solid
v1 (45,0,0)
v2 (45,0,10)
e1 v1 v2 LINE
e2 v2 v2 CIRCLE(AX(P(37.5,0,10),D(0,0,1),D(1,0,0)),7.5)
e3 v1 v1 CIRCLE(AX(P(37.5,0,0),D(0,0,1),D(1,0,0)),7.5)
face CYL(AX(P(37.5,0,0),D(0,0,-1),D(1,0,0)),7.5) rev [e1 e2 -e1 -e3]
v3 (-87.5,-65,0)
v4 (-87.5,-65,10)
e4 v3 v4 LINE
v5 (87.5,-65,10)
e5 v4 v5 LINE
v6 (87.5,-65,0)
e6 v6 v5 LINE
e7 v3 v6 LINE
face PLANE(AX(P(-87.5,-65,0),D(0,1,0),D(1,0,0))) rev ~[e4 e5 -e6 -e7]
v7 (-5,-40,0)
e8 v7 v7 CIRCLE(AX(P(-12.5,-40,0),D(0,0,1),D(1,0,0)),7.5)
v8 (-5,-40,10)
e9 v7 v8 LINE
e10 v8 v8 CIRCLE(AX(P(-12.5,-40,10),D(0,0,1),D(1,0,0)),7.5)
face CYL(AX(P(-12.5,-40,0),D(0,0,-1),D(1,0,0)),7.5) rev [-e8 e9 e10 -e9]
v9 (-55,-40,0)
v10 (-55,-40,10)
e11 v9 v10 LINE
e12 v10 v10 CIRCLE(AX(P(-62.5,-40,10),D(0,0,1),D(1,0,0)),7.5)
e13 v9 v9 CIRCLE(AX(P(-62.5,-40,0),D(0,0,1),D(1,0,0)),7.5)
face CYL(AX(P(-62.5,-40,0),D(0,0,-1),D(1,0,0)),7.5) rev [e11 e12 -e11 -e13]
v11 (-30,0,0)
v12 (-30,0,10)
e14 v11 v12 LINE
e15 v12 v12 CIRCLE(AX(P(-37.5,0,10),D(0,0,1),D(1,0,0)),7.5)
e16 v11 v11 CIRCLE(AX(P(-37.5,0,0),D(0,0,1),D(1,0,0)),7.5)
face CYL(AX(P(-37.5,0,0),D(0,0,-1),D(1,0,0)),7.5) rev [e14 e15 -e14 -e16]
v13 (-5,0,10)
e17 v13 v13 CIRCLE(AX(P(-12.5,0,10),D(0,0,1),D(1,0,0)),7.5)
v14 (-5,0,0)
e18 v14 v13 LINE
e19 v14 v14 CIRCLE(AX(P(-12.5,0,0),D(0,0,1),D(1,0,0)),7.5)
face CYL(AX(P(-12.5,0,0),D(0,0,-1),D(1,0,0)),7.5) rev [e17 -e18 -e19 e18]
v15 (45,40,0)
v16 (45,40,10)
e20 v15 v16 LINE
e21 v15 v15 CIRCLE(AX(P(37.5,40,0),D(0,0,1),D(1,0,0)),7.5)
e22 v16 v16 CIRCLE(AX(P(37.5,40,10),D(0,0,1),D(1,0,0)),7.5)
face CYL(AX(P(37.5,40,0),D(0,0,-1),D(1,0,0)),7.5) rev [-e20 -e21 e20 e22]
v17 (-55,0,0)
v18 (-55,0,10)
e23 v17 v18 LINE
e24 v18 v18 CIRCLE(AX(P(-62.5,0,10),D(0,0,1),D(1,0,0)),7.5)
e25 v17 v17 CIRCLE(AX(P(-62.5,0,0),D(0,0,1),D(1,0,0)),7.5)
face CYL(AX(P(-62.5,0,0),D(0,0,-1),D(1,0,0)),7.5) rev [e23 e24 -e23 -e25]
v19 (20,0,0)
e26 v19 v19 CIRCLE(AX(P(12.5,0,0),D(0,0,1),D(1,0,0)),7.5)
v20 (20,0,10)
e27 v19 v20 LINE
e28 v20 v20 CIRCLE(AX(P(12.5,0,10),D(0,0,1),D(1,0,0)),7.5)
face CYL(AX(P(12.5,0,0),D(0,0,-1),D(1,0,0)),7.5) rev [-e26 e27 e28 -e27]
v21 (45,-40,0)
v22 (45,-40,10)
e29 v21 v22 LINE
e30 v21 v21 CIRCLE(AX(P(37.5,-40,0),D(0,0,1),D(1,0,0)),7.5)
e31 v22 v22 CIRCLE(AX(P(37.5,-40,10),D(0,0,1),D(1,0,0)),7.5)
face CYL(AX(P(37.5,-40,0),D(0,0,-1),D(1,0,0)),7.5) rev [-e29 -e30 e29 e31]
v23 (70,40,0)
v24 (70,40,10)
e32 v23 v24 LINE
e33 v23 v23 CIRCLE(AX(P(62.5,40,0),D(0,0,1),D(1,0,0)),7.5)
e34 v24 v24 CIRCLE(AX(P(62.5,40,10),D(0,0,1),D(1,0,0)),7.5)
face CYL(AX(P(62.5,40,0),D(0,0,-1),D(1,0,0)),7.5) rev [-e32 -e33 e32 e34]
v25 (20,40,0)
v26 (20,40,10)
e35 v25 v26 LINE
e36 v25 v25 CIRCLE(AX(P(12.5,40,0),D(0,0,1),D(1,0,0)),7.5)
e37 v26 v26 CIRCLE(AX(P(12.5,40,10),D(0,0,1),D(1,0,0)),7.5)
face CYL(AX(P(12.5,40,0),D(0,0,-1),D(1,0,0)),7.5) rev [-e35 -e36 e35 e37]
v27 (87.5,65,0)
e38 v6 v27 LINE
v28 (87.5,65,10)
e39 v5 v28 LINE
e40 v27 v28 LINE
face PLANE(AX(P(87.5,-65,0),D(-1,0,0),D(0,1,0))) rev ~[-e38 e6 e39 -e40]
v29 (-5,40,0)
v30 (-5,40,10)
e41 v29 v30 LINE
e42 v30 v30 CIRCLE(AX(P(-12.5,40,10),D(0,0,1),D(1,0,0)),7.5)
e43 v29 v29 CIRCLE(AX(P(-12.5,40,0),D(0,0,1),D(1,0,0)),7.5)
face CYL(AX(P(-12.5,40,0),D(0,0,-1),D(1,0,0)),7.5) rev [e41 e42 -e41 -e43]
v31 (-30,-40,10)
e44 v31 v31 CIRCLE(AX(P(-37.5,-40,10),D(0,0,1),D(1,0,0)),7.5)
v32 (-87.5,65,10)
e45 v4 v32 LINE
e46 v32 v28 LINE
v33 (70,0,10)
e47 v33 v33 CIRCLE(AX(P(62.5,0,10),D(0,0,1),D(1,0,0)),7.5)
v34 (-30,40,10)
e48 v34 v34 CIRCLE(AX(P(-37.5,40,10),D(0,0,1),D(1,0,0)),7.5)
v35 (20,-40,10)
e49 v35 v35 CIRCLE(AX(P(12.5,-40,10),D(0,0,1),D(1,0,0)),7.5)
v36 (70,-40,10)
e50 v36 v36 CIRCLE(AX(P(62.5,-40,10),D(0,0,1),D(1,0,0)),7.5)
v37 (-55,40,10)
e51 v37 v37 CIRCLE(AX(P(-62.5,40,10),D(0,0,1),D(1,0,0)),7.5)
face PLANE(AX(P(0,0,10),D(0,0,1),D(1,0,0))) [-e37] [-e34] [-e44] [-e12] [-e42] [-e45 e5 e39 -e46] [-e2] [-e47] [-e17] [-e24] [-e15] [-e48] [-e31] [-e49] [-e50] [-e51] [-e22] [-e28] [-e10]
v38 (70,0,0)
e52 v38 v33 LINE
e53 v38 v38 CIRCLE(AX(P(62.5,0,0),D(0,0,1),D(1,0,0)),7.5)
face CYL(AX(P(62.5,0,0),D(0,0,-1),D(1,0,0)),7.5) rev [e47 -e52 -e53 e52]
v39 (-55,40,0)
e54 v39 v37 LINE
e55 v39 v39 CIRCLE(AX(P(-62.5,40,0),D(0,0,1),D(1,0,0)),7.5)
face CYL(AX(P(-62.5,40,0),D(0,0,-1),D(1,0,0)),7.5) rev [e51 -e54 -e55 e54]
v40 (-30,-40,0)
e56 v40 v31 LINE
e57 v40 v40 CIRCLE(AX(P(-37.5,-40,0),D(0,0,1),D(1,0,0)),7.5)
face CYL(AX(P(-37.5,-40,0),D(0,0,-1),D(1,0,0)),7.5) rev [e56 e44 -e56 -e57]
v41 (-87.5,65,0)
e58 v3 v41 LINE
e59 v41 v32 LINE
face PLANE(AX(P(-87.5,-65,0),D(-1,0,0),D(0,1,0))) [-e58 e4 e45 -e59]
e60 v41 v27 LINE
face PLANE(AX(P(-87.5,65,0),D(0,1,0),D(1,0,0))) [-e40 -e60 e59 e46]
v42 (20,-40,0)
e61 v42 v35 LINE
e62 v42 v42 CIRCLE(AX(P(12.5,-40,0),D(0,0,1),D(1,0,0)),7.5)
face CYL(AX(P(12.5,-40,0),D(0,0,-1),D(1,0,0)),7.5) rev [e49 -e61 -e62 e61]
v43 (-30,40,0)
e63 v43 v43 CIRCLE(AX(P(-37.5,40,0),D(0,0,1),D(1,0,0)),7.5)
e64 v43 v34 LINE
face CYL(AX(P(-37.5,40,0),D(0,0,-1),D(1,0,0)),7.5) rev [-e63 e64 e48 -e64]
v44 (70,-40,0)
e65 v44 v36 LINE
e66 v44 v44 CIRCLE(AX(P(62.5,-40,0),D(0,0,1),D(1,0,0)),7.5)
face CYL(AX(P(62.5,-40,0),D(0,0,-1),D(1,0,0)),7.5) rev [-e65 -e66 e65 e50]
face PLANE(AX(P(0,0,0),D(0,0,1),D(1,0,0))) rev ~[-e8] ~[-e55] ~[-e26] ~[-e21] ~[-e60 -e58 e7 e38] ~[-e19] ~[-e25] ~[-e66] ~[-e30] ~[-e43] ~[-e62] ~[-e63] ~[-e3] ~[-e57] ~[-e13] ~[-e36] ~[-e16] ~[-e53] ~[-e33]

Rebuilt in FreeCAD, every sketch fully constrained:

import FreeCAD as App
import Part
import Sketcher

V = App.Vector
Q = App.Units.Quantity

doc = App.newDocument("Part")
params = doc.addObject("Spreadsheet::Sheet", "Params")
for row, (alias, value) in enumerate([
    ("sketch1_diameter", "15 mm"),
    ("sketch1_width", "175 mm"),
    ("sketch1_height", "130 mm"),
    ("pad1_length", "10 mm"),
], start=1):
    params.set(f"A{row}", alias)
    params.set(f"B{row}", "=" + value)
    params.setAlias(f"B{row}", alias)

body = doc.addObject("PartDesign::Body", "Body")

sketch1 = body.newObject("Sketcher::SketchObject", "Sketch")
sketch1.AttachmentSupport = (doc.getObject("XY_Plane"), [""])
sketch1.MapMode = "FlatFace"
sketch1.addGeometry([
    Part.LineSegment(V(-87.5, 65, 0), V(-87.5, -65, 0)),
    Part.LineSegment(V(-87.5, -65, 0), V(87.5, -65, 0)),
    Part.LineSegment(V(87.5, -65, 0), V(87.5, 65, 0)),
    Part.LineSegment(V(87.5, 65, 0), V(-87.5, 65, 0)),
    Part.Circle(V(-62.5, -40, 0), V(0, 0, 1), 7.5),
    Part.Circle(V(-37.5, -40, 0), V(0, 0, 1), 7.5),
    Part.Circle(V(-12.5, -40, 0), V(0, 0, 1), 7.5),
    Part.Circle(V(12.5, -40, 0), V(0, 0, 1), 7.5),
    Part.Circle(V(37.5, -40, 0), V(0, 0, 1), 7.5),
    Part.Circle(V(62.5, -40, 0), V(0, 0, 1), 7.5),
    Part.Circle(V(-62.5, 0, 0), V(0, 0, 1), 7.5),
    Part.Circle(V(-37.5, 0, 0), V(0, 0, 1), 7.5),
    Part.Circle(V(-12.5, 0, 0), V(0, 0, 1), 7.5),
    Part.Circle(V(-62.5, 40, 0), V(0, 0, 1), 7.5),
    Part.Circle(V(-37.5, 40, 0), V(0, 0, 1), 7.5),
    Part.Circle(V(-12.5, 40, 0), V(0, 0, 1), 7.5),
    Part.Circle(V(12.5, 0, 0), V(0, 0, 1), 7.5),
    Part.Circle(V(37.5, 0, 0), V(0, 0, 1), 7.5),
    Part.Circle(V(62.5, 0, 0), V(0, 0, 1), 7.5),
    Part.Circle(V(12.5, 40, 0), V(0, 0, 1), 7.5),
    Part.Circle(V(37.5, 40, 0), V(0, 0, 1), 7.5),
    Part.Circle(V(62.5, 40, 0), V(0, 0, 1), 7.5),
], False)
sketch1.addConstraint([
    Sketcher.Constraint("Coincident", 0, 2, 1, 1),
    Sketcher.Constraint("Coincident", 1, 2, 2, 1),
    Sketcher.Constraint("Coincident", 2, 2, 3, 1),
    Sketcher.Constraint("Coincident", 3, 2, 0, 1),
    Sketcher.Constraint("Vertical", 0),
    Sketcher.Constraint("Horizontal", 1),
    Sketcher.Constraint("Vertical", 2),
    Sketcher.Constraint("Horizontal", 3),
    Sketcher.Constraint("Equal", 4, 5),
    Sketcher.Constraint("Equal", 5, 6),
    Sketcher.Constraint("Equal", 6, 7),
    Sketcher.Constraint("Equal", 7, 8),
    Sketcher.Constraint("Equal", 8, 9),
    Sketcher.Constraint("Equal", 9, 10),
    Sketcher.Constraint("Equal", 10, 11),
    Sketcher.Constraint("Equal", 11, 12),
    Sketcher.Constraint("Equal", 12, 13),
    Sketcher.Constraint("Equal", 13, 14),
    Sketcher.Constraint("Equal", 14, 15),
    Sketcher.Constraint("Equal", 15, 16),
    Sketcher.Constraint("Equal", 16, 17),
    Sketcher.Constraint("Equal", 17, 18),
    Sketcher.Constraint("Equal", 18, 19),
    Sketcher.Constraint("Equal", 19, 20),
    Sketcher.Constraint("Equal", 20, 21),
    Sketcher.Constraint("Symmetric", 9, 3, 13, 3, -1, 1),
    Sketcher.Constraint("Symmetric", 8, 3, 14, 3, -1, 1),
    Sketcher.Constraint("Symmetric", 7, 3, 15, 3, -1, 1),
    Sketcher.Constraint("Symmetric", 12, 3, 16, 3, -1, 1),
    Sketcher.Constraint("Symmetric", 11, 3, 17, 3, -1, 1),
    Sketcher.Constraint("Symmetric", 10, 3, 18, 3, -1, 1),
    Sketcher.Constraint("Symmetric", 6, 3, 19, 3, -1, 1),
    Sketcher.Constraint("Symmetric", 5, 3, 20, 3, -1, 1),
    Sketcher.Constraint("Symmetric", 4, 3, 21, 3, -1, 1),
    Sketcher.Constraint("Symmetric", 0, 2, 2, 2, -1, 1),
    Sketcher.Constraint("Symmetric", 6, 3, 7, 3, -2),
    Sketcher.Constraint("Symmetric", 5, 3, 8, 3, -2),
    Sketcher.Constraint("Symmetric", 4, 3, 9, 3, -2),
    Sketcher.Constraint("PointOnObject", 10, 3, -1),
    Sketcher.Constraint("PointOnObject", 11, 3, -1),
    Sketcher.Constraint("PointOnObject", 12, 3, -1),
    Sketcher.Constraint("Horizontal", 4, 3, 5, 3),
    Sketcher.Constraint("Horizontal", 5, 3, 6, 3),
    Sketcher.Constraint("Vertical", 4, 3, 10, 3),
    Sketcher.Constraint("Vertical", 5, 3, 11, 3),
    Sketcher.Constraint("Vertical", 6, 3, 12, 3),
    Sketcher.Constraint("Diameter", 4, Q("15 mm")),
    Sketcher.Constraint("DistanceX", 1, 1, 1, 2, Q("175 mm")),
    Sketcher.Constraint("DistanceY", 0, 2, 0, 1, Q("130 mm")),
    Sketcher.Constraint("DistanceY", 4, 3, -1, 1, Q("40 mm")),
    Sketcher.Constraint("DistanceX", 4, 3, 5, 3, Q("25 mm")),
    Sketcher.Constraint("DistanceX", 5, 3, 6, 3, Q("25 mm")),
    Sketcher.Constraint("DistanceX", 6, 3, 7, 3, Q("25 mm")),
])
sketch1.setExpression("Constraints[46]", "Params.sketch1_diameter")
sketch1.setExpression("Constraints[47]", "Params.sketch1_width")
sketch1.setExpression("Constraints[48]", "Params.sketch1_height")
pad1 = body.newObject("PartDesign::Pad", "Pad")
pad1.Profile = sketch1
pad1.setExpression("Length", "Params.pad1_length")

doc.recompute()
